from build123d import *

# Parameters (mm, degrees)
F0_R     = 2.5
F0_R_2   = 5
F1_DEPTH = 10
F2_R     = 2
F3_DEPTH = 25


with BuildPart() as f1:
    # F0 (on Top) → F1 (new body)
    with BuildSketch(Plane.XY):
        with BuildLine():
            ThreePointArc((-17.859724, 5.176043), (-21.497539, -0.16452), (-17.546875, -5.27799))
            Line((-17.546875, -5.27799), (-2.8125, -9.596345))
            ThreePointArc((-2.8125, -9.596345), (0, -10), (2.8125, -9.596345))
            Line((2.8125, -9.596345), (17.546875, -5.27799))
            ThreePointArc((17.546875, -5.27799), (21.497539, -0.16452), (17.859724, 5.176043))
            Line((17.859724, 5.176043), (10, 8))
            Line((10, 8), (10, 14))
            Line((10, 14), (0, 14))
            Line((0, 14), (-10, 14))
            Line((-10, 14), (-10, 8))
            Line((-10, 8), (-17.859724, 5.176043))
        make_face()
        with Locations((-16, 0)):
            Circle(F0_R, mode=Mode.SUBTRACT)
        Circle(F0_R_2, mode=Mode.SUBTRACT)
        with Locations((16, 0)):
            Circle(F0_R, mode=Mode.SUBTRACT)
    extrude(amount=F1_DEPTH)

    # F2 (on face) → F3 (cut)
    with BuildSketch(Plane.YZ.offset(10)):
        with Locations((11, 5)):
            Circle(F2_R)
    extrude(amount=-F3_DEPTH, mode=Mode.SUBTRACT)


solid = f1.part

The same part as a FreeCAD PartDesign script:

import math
import FreeCAD as App
import Part
import Sketcher

doc = App.newDocument("Part")
params = doc.addObject("Spreadsheet::Sheet", "Params")
for row, (alias, value) in enumerate([
    ("sketch1_diameter", "5 mm"),
    ("sketch1_diameter2", "10 mm"),
    ("sketch1_radius", "5.5 mm"),
    ("sketch1_width", "20 mm"),
    ("sketch1_height", "6 mm"),
    ("pad1_length", "10 mm"),
    ("sketch2_diameter", "4 mm"),
    ("pocket1_length", "25 mm"),
], start=1):
    params.set(f"A{row}", alias)
    params.set(f"B{row}", "=" + value)
    params.setAlias(f"B{row}", alias)

body = doc.addObject("PartDesign::Body", "Body")

# Sketch on XY plane
sketch1 = doc.addObject("Sketcher::SketchObject", "Sketch")
body.addObject(sketch1)
sketch1.AttachmentSupport = (doc.XY_Plane, [""])
sketch1.MapMode = "FlatFace"
sketch1.addGeometry([
    Part.ArcOfCircle(Part.Circle(App.Vector(-16, 0, 0), App.Vector(0, 0, 1), 5.5), math.radians(110), math.radians(254)),  # 0
    Part.LineSegment(App.Vector(-17.5, -5.3, 0), App.Vector(-2.8, -9.6, 0)),  # 1
    Part.ArcOfCircle(Part.Circle(App.Vector(0, 0, 0), App.Vector(0, 0, 1), 10), math.radians(-106), math.radians(-74)),  # 2
    Part.LineSegment(App.Vector(2.8, -9.6, 0), App.Vector(17.5, -5.3, 0)),  # 3
    Part.ArcOfCircle(Part.Circle(App.Vector(16, 0, 0), App.Vector(0, 0, 1), 5.5), math.radians(-74), math.radians(70)),  # 4
    Part.LineSegment(App.Vector(17.9, 5.2, 0), App.Vector(10, 8, 0)),  # 5
    Part.LineSegment(App.Vector(10, 8, 0), App.Vector(10, 14, 0)),  # 6
    Part.LineSegment(App.Vector(10, 14, 0), App.Vector(-10, 14, 0)),  # 7
    Part.LineSegment(App.Vector(-10, 14, 0), App.Vector(-10, 8, 0)),  # 8
    Part.LineSegment(App.Vector(-10, 8, 0), App.Vector(-17.9, 5.2, 0)),  # 9
    Part.Circle(App.Vector(-16, 0, 0), App.Vector(0, 0, 1), 2.5),  # 10
    Part.Circle(App.Vector(0, 0, 0), App.Vector(0, 0, 1), 5),  # 11
    Part.Circle(App.Vector(16, 0, 0), App.Vector(0, 0, 1), 2.5),  # 12
], False)
sketch1.addConstraint([
    Sketcher.Constraint("Tangent", 0, 2, 1, 1),
    Sketcher.Constraint("Tangent", 1, 2, 2, 1),
    Sketcher.Constraint("Tangent", 2, 2, 3, 1),
    Sketcher.Constraint("Tangent", 3, 2, 4, 1),
    Sketcher.Constraint("Tangent", 4, 2, 5, 1),
    Sketcher.Constraint("Coincident", 5, 2, 6, 1),
    Sketcher.Constraint("Coincident", 6, 2, 7, 1),
    Sketcher.Constraint("Coincident", 7, 2, 8, 1),
    Sketcher.Constraint("Coincident", 8, 2, 9, 1),
    Sketcher.Constraint("Tangent", 9, 2, 0, 1),
    Sketcher.Constraint("Vertical", 6),
    Sketcher.Constraint("Horizontal", 7),
    Sketcher.Constraint("Vertical", 8),
    Sketcher.Constraint("Coincident", 2, 3, -1, 1),
    Sketcher.Constraint("Coincident", 11, 3, -1, 1),
    Sketcher.Constraint("Coincident", 10, 3, 0, 3),
    Sketcher.Constraint("Coincident", 12, 3, 4, 3),
    Sketcher.Constraint("Equal", 0, 4),
    Sketcher.Constraint("Equal", 10, 12),
    Sketcher.Constraint("Symmetric", 0, 3, 4, 3, -1, 1),
    Sketcher.Constraint("Symmetric", 5, 2, 8, 2, -2),
    Sketcher.Constraint("PointOnObject", 0, 3, -1),
    Sketcher.Constraint("Diameter", 10, 5.0),
    Sketcher.Constraint("Diameter", 11, 10.0),
    Sketcher.Constraint("Radius", 0, 5.5),
    Sketcher.Constraint("DistanceX", 7, 2, 7, 1, 20.0),
    Sketcher.Constraint("DistanceY", 6, 1, 6, 2, 6.0),
    Sketcher.Constraint("DistanceX", 0, 3, -1, 1, 16.000001),
    Sketcher.Constraint("DistanceY", -1, 1, 5, 2, 8.0),
    Sketcher.Constraint("Radius", 2, 9.999992),
])
sketch1.setExpression("Constraints[22]", "Params.sketch1_diameter")
sketch1.setExpression("Constraints[23]", "Params.sketch1_diameter2")
sketch1.setExpression("Constraints[24]", "Params.sketch1_radius")
sketch1.setExpression("Constraints[25]", "Params.sketch1_width")
sketch1.setExpression("Constraints[26]", "Params.sketch1_height")
pad1 = doc.addObject("PartDesign::Pad", "Pad")
body.addObject(pad1)
pad1.Profile = sketch1
pad1.setExpression("Length", "Params.pad1_length")

# Sketch on YZ plane
sketch2 = doc.addObject("Sketcher::SketchObject", "Sketch001")
body.addObject(sketch2)
sketch2.AttachmentSupport = (doc.YZ_Plane, [""])
sketch2.MapMode = "FlatFace"
sketch2.AttachmentOffset = App.Placement(App.Vector(0, 0, 10), App.Rotation())
sketch2.addGeometry(Part.Circle(App.Vector(11, 5, 0), App.Vector(0, 0, 1), 2), False)
sketch2.addConstraint([
    Sketcher.Constraint("Diameter", 0, 4.0),
    Sketcher.Constraint("DistanceX", -1, 1, 0, 3, 11.0),
    Sketcher.Constraint("DistanceY", -1, 1, 0, 3, 5.0),
])
sketch2.setExpression("Constraints[0]", "Params.sketch2_diameter")
pocket1 = doc.addObject("PartDesign::Pocket", "Pocket")
body.addObject(pocket1)
pocket1.Profile = sketch2
pocket1.setExpression("Length", "Params.pocket1_length")

doc.recompute()
